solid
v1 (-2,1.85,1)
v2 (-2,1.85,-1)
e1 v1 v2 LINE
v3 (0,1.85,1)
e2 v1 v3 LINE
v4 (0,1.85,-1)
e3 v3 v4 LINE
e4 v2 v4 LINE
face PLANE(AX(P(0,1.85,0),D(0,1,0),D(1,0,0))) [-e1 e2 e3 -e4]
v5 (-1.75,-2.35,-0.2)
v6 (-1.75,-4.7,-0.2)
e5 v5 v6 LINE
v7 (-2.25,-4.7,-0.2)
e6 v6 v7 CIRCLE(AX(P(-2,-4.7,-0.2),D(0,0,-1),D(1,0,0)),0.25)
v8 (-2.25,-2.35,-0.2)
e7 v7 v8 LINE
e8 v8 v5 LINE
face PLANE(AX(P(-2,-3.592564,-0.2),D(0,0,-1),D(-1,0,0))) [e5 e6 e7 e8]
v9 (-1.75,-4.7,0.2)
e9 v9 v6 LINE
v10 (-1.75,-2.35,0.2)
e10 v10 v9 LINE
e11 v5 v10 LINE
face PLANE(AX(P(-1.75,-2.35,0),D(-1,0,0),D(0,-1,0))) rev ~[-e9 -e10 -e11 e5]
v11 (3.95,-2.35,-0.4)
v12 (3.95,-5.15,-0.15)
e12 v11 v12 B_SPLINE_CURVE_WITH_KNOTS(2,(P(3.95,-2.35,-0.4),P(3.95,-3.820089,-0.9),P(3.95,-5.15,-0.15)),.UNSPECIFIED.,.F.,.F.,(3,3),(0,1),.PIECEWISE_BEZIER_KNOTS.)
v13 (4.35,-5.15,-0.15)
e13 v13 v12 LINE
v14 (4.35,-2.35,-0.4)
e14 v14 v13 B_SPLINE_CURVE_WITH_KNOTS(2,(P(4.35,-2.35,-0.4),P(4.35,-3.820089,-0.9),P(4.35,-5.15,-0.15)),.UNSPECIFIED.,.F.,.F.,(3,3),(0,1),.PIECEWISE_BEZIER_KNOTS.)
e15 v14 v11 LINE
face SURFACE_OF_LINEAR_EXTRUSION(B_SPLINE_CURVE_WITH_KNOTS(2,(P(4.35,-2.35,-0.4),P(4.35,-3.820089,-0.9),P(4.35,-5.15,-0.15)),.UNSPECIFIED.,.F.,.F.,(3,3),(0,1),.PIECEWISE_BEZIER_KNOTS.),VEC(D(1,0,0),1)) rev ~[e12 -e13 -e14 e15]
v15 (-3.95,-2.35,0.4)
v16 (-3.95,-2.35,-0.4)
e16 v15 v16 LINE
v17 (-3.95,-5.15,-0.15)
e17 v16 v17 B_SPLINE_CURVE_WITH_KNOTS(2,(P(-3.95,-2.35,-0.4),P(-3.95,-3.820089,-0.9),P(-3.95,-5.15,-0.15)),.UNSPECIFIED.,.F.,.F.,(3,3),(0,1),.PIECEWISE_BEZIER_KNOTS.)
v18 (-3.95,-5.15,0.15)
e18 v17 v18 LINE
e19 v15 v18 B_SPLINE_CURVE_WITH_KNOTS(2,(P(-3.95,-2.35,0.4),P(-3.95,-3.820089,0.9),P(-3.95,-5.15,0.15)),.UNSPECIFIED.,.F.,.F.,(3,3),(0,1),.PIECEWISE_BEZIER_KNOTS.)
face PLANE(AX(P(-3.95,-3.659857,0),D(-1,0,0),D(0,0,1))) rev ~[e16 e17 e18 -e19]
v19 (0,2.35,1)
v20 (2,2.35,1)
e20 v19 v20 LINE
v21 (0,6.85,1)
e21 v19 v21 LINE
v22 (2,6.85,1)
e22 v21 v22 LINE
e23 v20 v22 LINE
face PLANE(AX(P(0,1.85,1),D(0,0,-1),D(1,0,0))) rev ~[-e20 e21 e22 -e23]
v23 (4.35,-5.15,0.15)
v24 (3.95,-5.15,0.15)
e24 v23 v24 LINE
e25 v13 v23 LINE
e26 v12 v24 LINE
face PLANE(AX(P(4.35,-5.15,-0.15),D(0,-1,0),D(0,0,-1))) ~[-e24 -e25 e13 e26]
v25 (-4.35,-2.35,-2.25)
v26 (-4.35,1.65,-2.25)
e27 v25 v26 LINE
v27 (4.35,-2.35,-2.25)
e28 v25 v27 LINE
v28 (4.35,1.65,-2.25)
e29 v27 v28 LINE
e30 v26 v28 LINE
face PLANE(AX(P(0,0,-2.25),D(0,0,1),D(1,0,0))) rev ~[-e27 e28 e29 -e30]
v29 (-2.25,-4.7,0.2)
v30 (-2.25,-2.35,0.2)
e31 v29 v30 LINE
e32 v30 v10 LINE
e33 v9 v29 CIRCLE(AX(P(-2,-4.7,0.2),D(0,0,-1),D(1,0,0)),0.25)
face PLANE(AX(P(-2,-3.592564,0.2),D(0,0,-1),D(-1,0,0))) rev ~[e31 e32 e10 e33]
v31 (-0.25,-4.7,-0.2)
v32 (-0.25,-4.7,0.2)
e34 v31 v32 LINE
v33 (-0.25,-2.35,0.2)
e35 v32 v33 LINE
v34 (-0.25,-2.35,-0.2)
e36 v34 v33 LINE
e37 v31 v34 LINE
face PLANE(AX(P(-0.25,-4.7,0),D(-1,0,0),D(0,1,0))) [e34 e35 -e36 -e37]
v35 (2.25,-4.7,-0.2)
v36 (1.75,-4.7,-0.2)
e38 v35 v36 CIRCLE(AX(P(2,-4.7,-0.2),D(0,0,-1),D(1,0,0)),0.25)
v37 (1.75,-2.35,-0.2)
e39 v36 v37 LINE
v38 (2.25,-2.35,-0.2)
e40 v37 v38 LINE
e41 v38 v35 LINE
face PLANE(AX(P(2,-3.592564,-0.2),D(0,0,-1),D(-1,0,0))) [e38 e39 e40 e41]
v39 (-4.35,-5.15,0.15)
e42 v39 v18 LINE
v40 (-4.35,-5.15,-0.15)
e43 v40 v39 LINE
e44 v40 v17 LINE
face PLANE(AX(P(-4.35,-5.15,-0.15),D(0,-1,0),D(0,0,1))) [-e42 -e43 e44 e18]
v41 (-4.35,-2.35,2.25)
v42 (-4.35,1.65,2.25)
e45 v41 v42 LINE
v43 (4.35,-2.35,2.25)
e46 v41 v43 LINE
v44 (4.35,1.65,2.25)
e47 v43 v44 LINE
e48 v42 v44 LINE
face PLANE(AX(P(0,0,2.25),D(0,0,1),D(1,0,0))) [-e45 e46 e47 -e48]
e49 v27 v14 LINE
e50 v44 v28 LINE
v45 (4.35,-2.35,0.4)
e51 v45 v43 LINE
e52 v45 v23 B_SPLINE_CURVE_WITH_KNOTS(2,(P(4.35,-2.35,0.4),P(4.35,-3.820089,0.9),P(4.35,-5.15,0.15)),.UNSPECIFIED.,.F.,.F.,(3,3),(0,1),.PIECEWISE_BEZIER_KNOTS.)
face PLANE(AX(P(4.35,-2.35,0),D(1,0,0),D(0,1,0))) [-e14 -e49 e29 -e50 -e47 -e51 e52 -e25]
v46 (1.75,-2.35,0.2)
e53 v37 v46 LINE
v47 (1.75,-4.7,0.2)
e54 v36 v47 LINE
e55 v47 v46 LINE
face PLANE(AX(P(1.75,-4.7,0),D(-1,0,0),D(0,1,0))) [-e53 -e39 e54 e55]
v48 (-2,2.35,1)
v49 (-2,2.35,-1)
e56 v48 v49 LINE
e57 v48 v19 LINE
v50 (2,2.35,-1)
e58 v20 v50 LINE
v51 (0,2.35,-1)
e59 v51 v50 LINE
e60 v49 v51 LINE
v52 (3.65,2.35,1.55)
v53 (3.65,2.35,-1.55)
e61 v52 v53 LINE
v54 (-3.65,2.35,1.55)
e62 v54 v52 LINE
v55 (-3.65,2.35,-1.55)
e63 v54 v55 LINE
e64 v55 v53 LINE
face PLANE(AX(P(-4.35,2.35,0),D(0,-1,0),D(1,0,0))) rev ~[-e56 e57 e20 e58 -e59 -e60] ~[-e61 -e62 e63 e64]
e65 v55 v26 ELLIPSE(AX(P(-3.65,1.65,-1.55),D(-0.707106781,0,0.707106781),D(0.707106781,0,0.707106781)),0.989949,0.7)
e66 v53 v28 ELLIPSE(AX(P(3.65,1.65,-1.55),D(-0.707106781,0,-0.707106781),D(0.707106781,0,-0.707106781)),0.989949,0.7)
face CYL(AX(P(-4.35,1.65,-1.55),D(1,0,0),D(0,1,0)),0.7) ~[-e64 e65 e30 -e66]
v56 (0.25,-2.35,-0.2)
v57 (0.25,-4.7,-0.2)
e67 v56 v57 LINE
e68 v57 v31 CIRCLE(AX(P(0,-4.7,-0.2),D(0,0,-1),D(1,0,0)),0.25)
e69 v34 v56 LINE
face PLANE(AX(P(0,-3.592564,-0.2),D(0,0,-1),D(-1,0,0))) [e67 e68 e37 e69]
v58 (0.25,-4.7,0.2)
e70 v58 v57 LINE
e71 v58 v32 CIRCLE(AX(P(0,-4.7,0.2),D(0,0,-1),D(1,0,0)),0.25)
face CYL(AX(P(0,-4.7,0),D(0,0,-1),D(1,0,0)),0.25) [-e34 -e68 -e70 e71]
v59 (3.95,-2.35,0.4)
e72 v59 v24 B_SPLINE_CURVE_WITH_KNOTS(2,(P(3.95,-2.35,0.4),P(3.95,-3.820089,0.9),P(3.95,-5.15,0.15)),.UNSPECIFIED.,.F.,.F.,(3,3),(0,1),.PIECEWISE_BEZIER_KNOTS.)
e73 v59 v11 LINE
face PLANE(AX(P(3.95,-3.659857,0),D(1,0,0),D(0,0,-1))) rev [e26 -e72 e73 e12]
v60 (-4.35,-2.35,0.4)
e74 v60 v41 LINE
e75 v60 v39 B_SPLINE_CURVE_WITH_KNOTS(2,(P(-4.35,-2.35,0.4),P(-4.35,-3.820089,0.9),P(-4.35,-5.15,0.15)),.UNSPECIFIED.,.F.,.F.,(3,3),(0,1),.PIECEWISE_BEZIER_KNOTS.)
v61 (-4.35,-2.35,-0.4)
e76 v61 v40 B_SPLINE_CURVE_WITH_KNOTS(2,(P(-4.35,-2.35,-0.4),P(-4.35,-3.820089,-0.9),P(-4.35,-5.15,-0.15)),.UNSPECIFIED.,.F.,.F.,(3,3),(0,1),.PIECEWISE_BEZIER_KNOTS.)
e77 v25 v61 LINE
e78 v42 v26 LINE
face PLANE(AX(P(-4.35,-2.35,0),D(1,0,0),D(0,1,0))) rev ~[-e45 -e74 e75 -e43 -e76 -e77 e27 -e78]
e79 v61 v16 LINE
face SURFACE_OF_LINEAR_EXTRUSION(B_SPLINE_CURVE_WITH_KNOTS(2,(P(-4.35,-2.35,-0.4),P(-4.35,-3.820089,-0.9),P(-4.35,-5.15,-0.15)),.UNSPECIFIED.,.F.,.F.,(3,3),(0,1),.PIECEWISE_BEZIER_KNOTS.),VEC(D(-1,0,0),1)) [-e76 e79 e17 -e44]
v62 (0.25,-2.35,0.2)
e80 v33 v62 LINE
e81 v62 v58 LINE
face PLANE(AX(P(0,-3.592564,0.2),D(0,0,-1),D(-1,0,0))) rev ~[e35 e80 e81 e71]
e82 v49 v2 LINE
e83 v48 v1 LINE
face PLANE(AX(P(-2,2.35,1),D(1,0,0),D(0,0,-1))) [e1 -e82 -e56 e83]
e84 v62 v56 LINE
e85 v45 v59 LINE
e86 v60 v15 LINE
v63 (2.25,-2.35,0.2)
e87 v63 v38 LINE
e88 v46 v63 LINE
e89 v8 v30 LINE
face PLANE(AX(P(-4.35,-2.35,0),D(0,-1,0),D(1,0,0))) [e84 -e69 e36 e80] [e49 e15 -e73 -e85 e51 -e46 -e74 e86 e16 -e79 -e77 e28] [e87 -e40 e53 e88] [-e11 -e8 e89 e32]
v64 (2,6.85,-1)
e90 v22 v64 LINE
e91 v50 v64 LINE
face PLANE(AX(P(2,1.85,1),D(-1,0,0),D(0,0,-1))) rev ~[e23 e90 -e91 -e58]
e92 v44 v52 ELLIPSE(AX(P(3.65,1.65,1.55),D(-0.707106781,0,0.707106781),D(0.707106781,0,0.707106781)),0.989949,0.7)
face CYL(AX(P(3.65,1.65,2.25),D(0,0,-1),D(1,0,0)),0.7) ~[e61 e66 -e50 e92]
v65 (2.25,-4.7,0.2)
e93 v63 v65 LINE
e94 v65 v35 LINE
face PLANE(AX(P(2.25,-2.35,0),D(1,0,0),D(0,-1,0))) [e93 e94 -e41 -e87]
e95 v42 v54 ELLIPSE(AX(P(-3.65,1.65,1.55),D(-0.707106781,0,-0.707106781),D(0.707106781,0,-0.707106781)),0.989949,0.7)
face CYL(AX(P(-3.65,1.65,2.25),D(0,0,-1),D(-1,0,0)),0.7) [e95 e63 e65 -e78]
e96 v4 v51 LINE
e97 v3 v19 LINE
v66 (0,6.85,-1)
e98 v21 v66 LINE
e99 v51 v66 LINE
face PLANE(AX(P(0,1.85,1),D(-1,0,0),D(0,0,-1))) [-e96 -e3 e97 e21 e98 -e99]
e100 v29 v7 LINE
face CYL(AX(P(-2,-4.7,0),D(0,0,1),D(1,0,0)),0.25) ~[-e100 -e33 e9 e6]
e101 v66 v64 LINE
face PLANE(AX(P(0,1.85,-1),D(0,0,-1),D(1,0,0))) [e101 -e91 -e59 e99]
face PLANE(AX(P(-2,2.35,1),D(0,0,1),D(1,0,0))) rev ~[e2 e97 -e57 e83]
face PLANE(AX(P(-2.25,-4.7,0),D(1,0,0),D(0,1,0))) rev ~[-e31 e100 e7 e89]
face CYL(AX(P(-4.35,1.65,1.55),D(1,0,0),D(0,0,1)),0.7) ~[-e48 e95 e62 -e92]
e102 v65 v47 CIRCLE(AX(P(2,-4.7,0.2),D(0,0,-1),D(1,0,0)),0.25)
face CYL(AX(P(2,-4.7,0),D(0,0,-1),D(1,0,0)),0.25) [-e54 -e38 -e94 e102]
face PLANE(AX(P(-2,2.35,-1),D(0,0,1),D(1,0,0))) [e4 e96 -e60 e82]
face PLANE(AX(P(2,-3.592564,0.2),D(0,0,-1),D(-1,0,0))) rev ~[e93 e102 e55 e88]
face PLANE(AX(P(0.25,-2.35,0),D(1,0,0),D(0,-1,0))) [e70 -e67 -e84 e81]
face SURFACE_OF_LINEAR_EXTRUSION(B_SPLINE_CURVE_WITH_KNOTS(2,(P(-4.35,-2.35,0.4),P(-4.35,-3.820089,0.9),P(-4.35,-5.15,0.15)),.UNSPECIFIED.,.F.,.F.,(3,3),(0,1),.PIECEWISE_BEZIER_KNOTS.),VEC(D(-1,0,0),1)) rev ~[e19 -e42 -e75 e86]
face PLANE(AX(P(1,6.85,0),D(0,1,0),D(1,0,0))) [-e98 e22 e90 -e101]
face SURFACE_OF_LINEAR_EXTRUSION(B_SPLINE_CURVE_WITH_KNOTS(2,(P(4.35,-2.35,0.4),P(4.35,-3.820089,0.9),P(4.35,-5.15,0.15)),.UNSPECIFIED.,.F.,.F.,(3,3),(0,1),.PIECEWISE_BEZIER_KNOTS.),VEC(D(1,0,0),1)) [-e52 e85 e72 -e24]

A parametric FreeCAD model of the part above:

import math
import FreeCAD as App
import Part
import Sketcher

V = App.Vector
Q = App.Units.Quantity


def edges_at(feature, points):
    """Names of the edges that pass closest to the given points."""
    edges = feature.Shape.Edges
    near = lambda p: min(range(len(edges)), key=lambda i: edges[i].distToShape(Part.Vertex(*p))[0])
    return sorted({f"Edge{near(p) + 1}" for p in points})


def add_polygon(sketch, points):
    """Adds a closed chain of lines whose ends are joined by coincident constraints."""
    first, n = sketch.GeometryCount, len(points)
    for a, b in zip(points, points[1:] + points[:1]):
        sketch.addGeometry(Part.LineSegment(App.Vector(*a, 0), App.Vector(*b, 0)), False)
    for i in range(n):
        sketch.addConstraint(Sketcher.Constraint("Coincident", first + i, 2, first + (i + 1) % n, 1))

doc = App.newDocument("Part")
body = doc.addObject("PartDesign::Body", "Body")

# Sketch on XY plane
sketch1 = body.newObject("Sketcher::SketchObject", "Sketch")
sketch1.AttachmentSupport = (doc.getObject("XY_Plane"), [""])
sketch1.MapMode = "FlatFace"
add_polygon(sketch1, [(-4.3, 2.4), (-4.3, -2.4), (4.3, -2.4), (4.3, 2.4)])  # lines 0-3
sketch1.addConstraint([
    Sketcher.Constraint("Vertical", 0),
    Sketcher.Constraint("Horizontal", 1),
    Sketcher.Constraint("Vertical", 2),
    Sketcher.Constraint("Horizontal", 3),
    Sketcher.Constraint("Symmetric", 0, 2, 2, 2, -1, 1),
    Sketcher.Constraint("DistanceX", 1, 1, 1, 2, Q("8.7 mm")),
    Sketcher.Constraint("DistanceY", 0, 2, 0, 1, Q("4.7 mm")),
])
pad1 = body.newObject("PartDesign::Pad", "Pad")
pad1.Profile = sketch1
pad1.Length = 4.5
pad1.Midplane = True
doc.recompute()

fillet = body.newObject("PartDesign::Fillet", "Fillet")
fillet.Base = (pad1, edges_at(pad1, [
    (0, 2.35, -2.25),
    (0, 2.35, 2.25),
    (-4.35, 2.35, 0),
    (4.35, 2.35, 0),
]))
fillet.Radius = 0.7

# Sketch on YZ plane
sketch2 = body.newObject("Sketcher::SketchObject", "Sketch001")
sketch2.AttachmentSupport = (doc.getObject("YZ_Plane"), [""])
sketch2.MapMode = "FlatFace"
sketch2.AttachmentOffset = App.Placement(V(0, 0, -4.35), App.Rotation())
sketch2.addGeometry([
    Part.LineSegment(V(-5.15, -0.15, 0), V(-5.15, 0.15, 0)),
    Part.BSplineCurve([V(-2.35, 0.4, 0), V(-3.820089, 0.9, 0), V(-5.15, 0.15, 0)], [3, 3], [0, 1], False, 2, [1, 1, 1], False),
    Part.LineSegment(V(-2.35, 0.4, 0), V(-2.35, -0.4, 0)),
    Part.BSplineCurve([V(-2.35, -0.4, 0), V(-3.820089, -0.9, 0), V(-5.15, -0.15, 0)], [3, 3], [0, 1], False, 2, [1, 1, 1], False),
], False)
sketch2.addConstraint([
    Sketcher.Constraint("Block", 1),
    Sketcher.Constraint("Block", 3),
    Sketcher.Constraint("Coincident", 0, 2, 1, 2),
    Sketcher.Constraint("Coincident", 1, 1, 2, 1),
    Sketcher.Constraint("Coincident", 2, 2, 3, 1),
    Sketcher.Constraint("Coincident", 3, 2, 0, 1),
])
pad2 = body.newObject("PartDesign::Pad", "Pad001")
pad2.Profile = sketch2
pad2.Length = 0.4
doc.recompute()

mirrored = body.newObject("PartDesign::Mirrored", "Mirrored")
mirrored.Originals = [pad2]
mirrored.MirrorPlane = (doc.getObject("YZ_Plane"), [""])
body.Tip = mirrored

# Sketch on XY plane
sketch3 = body.newObject("Sketcher::SketchObject", "Sketch002")
sketch3.AttachmentSupport = (doc.getObject("XY_Plane"), [""])
sketch3.MapMode = "FlatFace"
sketch3.addGeometry([
    Part.LineSegment(V(0.25, -2.35, 0), V(-0.25, -2.35, 0)),  # 0
    Part.LineSegment(V(-0.25, -2.35, 0), V(-0.25, -4.7, 0)),  # 1
    Part.ArcOfCircle(Part.Circle(V(0, -4.7, 0), V(0, 0, 1), 0.25), math.radians(180), math.radians(360)),  # 2
    Part.LineSegment(V(0.25, -4.7, 0), V(0.25, -2.35, 0)),  # 3
    Part.LineSegment(V(2.25, -2.35, 0), V(1.75, -2.35, 0)),  # 4
    Part.LineSegment(V(1.75, -2.35, 0), V(1.75, -4.7, 0)),  # 5
    Part.ArcOfCircle(Part.Circle(V(2, -4.7, 0), V(0, 0, 1), 0.25), math.radians(180), math.radians(360)),  # 6
    Part.LineSegment(V(2.25, -4.7, 0), V(2.25, -2.35, 0)),  # 7
    Part.LineSegment(V(-1.75, -4.7, 0), V(-1.75, -2.35, 0)),  # 8
    Part.LineSegment(V(-1.75, -2.35, 0), V(-2.25, -2.35, 0)),  # 9
    Part.LineSegment(V(-2.25, -2.35, 0), V(-2.25, -4.7, 0)),  # 10
    Part.ArcOfCircle(Part.Circle(V(-2, -4.7, 0), V(0, 0, 1), 0.25), math.radians(180), math.radians(360)),  # 11
], False)
sketch3.addConstraint([
    Sketcher.Constraint("Coincident", 0, 2, 1, 1),
    Sketcher.Constraint("Tangent", 1, 2, 2, 1),
    Sketcher.Constraint("Tangent", 2, 2, 3, 1),
    Sketcher.Constraint("Coincident", 3, 2, 0, 1),
    Sketcher.Constraint("Coincident", 4, 2, 5, 1),
    Sketcher.Constraint("Tangent", 5, 2, 6, 1),
    Sketcher.Constraint("Tangent", 6, 2, 7, 1),
    Sketcher.Constraint("Coincident", 7, 2, 4, 1),
    Sketcher.Constraint("Coincident", 8, 2, 9, 1),
    Sketcher.Constraint("Coincident", 9, 2, 10, 1),
    Sketcher.Constraint("Tangent", 10, 2, 11, 1),
    Sketcher.Constraint("Tangent", 11, 2, 8, 1),
    Sketcher.Constraint("Horizontal", 0),
    Sketcher.Constraint("Vertical", 1),
    Sketcher.Constraint("Vertical", 3),
    Sketcher.Constraint("Horizontal", 4),
    Sketcher.Constraint("Vertical", 5),
    Sketcher.Constraint("Vertical", 7),
    Sketcher.Constraint("Vertical", 8),
    Sketcher.Constraint("Horizontal", 9),
    Sketcher.Constraint("Vertical", 10),
    Sketcher.Constraint("Equal", 2, 6),
    Sketcher.Constraint("Equal", 6, 11),
    Sketcher.Constraint("Symmetric", 6, 3, 11, 3, -2),
    Sketcher.Constraint("PointOnObject", 2, 3, -2),
    Sketcher.Constraint("Horizontal", 2, 3, 6, 3),
    Sketcher.Constraint("Horizontal", 3, 2, 4, 2),
    Sketcher.Constraint("Horizontal", 7, 2, 8, 2),
    Sketcher.Constraint("Radius", 2, Q("0.25 mm")),
    Sketcher.Constraint("DistanceX", -1, 1, 6, 3, Q("2 mm")),
    Sketcher.Constraint("DistanceY", 1, 2, 1, 1, Q("2.35 mm")),
    Sketcher.Constraint("DistanceY", 2, 3, -1, 1, Q("4.7 mm")),
])
pad3 = body.newObject("PartDesign::Pad", "Pad002")
pad3.Profile = sketch3
pad3.Length = 0.4
pad3.Midplane = True

# Sketch on XZ plane
sketch4 = body.newObject("Sketcher::SketchObject", "Sketch003")
sketch4.AttachmentSupport = (doc.getObject("XZ_Plane"), [""])
sketch4.MapMode = "FlatFace"
sketch4.AttachmentOffset = App.Placement(V(0, 0, -2.35), App.Rotation())
add_polygon(sketch4, [(-2, -1), (-2, 1), (2, 1), (2, -1)])  # lines 0-3
sketch4.addConstraint([
    Sketcher.Constraint("Vertical", 0),
    Sketcher.Constraint("Horizontal", 1),
    Sketcher.Constraint("Vertical", 2),
    Sketcher.Constraint("Horizontal", 3),
    Sketcher.Constraint("Symmetric", 0, 2, 2, 2, -1, 1),
    Sketcher.Constraint("DistanceX", 1, 1, 1, 2, Q("4 mm")),
    Sketcher.Constraint("DistanceY", 0, 1, 0, 2, Q("2 mm")),
])
pocket1 = body.newObject("PartDesign::Pocket", "Pocket")
pocket1.Profile = sketch4
pocket1.Length = 0.5
pocket1.Reversed = True

# Sketch on XZ plane
sketch5 = body.newObject("Sketcher::SketchObject", "Sketch004")
sketch5.AttachmentSupport = (doc.getObject("XZ_Plane"), [""])
sketch5.MapMode = "FlatFace"
sketch5.AttachmentOffset = App.Placement(V(0, 0, -1.85), App.Rotation())
add_polygon(sketch5, [(0, -1), (0, 1), (2, 1), (2, -1)])  # lines 0-3
sketch5.addConstraint([
    Sketcher.Constraint("Vertical", 0),
    Sketcher.Constraint("Horizontal", 1),
    Sketcher.Constraint("Vertical", 2),
    Sketcher.Constraint("Horizontal", 3),
    Sketcher.Constraint("Symmetric", 0, 2, 3, 2, -1, 1),
    Sketcher.Constraint("Equal", 3, 0),
    Sketcher.Constraint("DistanceX", 1, 1, 1, 2, Q("2 mm")),
])
pad4 = body.newObject("PartDesign::Pad", "Pad003")
pad4.Profile = sketch5
pad4.Length = 5
pad4.Reversed = True

doc.recompute()
